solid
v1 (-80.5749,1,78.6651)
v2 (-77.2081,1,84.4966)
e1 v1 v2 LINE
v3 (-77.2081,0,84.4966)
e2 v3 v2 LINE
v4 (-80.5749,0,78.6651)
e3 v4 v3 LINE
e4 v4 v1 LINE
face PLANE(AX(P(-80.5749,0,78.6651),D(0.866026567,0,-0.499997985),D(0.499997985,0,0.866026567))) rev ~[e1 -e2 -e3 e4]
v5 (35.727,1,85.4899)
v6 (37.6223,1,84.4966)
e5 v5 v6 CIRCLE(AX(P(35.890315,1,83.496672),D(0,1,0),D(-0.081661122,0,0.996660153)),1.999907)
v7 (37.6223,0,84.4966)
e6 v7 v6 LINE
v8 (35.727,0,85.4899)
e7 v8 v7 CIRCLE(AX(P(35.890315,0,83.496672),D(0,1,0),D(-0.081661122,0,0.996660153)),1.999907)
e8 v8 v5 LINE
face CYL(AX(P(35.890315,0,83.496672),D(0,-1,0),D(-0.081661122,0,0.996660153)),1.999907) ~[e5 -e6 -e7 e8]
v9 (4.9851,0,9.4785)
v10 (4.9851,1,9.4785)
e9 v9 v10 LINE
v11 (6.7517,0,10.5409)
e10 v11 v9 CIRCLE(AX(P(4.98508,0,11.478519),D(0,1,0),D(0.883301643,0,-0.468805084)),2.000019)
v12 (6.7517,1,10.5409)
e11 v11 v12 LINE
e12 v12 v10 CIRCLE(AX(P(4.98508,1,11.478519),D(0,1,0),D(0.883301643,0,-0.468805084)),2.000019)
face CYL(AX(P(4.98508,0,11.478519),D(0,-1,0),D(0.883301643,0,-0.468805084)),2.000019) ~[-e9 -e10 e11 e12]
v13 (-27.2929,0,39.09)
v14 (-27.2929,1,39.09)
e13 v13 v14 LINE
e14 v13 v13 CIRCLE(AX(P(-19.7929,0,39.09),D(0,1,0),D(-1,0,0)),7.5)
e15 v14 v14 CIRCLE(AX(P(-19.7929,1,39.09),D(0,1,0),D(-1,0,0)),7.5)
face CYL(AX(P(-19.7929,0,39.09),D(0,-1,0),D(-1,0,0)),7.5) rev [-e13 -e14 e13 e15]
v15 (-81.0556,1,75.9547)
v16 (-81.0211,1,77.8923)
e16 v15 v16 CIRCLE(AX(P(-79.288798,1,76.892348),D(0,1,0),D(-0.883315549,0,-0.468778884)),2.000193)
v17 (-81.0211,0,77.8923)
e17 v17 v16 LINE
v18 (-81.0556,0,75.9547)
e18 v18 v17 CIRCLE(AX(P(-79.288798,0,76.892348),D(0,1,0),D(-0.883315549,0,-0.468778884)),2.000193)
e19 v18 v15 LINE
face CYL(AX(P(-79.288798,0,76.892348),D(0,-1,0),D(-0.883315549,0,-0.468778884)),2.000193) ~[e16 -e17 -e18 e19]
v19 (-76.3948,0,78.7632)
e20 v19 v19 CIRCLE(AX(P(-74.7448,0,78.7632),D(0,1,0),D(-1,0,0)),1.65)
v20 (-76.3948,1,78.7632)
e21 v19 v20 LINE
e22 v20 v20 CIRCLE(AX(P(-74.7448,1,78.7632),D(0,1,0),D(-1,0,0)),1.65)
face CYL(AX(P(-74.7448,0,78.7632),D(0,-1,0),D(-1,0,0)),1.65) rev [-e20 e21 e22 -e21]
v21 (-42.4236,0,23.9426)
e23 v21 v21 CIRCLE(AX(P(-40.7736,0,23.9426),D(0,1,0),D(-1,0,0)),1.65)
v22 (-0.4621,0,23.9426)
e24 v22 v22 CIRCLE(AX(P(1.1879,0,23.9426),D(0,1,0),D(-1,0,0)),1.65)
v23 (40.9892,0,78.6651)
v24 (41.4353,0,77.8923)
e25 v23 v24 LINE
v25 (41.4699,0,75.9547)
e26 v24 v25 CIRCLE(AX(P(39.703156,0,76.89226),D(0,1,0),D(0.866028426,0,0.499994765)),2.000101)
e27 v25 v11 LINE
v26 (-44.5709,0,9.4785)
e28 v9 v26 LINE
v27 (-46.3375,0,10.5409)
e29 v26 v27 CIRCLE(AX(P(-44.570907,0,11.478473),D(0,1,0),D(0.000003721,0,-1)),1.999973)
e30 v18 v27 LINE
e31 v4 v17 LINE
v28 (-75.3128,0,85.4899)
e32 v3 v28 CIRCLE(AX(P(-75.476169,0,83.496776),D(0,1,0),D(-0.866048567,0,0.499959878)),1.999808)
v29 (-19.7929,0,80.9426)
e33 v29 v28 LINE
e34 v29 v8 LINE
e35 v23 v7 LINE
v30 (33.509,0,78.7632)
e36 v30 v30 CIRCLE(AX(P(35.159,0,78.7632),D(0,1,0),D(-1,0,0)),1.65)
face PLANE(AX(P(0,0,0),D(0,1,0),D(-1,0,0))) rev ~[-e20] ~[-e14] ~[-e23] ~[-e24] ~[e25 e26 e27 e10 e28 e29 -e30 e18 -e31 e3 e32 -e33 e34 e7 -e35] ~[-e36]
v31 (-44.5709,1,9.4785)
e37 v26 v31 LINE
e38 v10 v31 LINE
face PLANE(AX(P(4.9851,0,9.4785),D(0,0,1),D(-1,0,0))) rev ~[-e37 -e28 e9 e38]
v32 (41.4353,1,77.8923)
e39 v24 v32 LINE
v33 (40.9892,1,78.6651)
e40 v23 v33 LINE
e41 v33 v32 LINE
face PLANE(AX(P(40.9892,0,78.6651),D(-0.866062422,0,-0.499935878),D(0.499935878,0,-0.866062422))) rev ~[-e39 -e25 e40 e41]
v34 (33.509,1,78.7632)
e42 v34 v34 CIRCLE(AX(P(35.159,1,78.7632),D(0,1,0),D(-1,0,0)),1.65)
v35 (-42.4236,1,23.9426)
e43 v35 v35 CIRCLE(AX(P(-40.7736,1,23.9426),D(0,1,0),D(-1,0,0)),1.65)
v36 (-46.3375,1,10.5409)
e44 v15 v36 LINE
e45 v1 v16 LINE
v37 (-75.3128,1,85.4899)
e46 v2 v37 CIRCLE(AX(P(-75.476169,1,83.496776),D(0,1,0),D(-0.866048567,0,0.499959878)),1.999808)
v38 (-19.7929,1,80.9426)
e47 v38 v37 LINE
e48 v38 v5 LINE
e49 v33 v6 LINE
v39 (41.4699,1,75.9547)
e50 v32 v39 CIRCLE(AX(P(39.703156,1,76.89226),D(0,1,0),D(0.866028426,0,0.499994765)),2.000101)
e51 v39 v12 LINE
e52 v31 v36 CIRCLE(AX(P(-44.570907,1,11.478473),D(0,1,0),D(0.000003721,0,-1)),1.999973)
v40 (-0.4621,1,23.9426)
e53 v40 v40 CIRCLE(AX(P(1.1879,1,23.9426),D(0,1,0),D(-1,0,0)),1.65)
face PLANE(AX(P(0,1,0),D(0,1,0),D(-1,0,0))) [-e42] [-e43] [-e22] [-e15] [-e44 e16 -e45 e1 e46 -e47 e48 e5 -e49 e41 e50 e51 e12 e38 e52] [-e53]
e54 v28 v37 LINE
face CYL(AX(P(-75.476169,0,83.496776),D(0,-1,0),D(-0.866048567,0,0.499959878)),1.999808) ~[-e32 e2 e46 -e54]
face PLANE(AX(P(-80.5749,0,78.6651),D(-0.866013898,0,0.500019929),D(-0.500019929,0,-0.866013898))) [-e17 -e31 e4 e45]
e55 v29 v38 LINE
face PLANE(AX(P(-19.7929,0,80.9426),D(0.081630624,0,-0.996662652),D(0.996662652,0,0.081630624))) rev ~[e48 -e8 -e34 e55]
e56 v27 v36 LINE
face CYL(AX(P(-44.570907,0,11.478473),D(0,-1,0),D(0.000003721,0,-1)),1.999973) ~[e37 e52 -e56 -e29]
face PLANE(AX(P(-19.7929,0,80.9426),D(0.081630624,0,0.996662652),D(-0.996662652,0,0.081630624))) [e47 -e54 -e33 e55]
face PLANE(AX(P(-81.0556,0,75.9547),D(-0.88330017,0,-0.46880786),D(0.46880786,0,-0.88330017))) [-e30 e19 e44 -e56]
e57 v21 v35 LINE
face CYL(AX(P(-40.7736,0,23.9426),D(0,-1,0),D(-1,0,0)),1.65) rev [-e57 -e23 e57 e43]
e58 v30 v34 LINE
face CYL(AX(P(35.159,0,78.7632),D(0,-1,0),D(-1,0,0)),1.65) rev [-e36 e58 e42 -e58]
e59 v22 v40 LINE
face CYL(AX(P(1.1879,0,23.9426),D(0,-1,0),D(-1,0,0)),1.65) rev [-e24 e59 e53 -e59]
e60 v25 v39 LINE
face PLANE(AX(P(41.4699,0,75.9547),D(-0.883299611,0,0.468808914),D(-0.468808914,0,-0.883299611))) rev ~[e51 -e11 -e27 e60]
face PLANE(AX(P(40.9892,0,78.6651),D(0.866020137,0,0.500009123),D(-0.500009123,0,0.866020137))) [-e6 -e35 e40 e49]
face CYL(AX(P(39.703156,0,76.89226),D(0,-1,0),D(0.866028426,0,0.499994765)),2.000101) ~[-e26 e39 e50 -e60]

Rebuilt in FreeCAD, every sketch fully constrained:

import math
import FreeCAD as App
import Part
import Sketcher

V = App.Vector

doc = App.newDocument("Part")
body = doc.addObject("PartDesign::Body", "Body")

sketch1 = body.newObject("Sketcher::SketchObject", "Sketch")
sketch1.AttachmentSupport = (doc.getObject("XZ_Plane"), [""])
sketch1.MapMode = "FlatFace"
sketch1.addGeometry(Part.LineSegment(V(-81.0211, 77.8923, 0), V(-80.5749, 78.6651, 0)), False)
sketch1.addGeometry(Part.LineSegment(V(-80.5749, 78.6651, 0), V(-77.2081, 84.4966, 0)), False)
sketch1.addGeometry(Part.ArcOfCircle(Part.Circle(V(-75.476, 83.4966, 0), V(0, 0, 1), 2.000043), math.radians(85.319389), math.radians(150.000705)), False)
sketch1.addGeometry(Part.LineSegment(V(-75.3128, 85.4899, 0), V(-19.7929, 80.9426, 0)), False)
sketch1.addGeometry(Part.LineSegment(V(-19.7929, 80.9426, 0), V(35.727, 85.4899, 0)), False)
sketch1.addGeometry(Part.ArcOfCircle(Part.Circle(V(35.8903, 83.4966, 0), V(0, 0, 1), 1.999978), math.radians(30.000728), math.radians(94.683466)), False)
sketch1.addGeometry(Part.LineSegment(V(37.6223, 84.4966, 0), V(40.9892, 78.6651, 0)), False)
sketch1.addGeometry(Part.LineSegment(V(40.9892, 78.6651, 0), V(41.4353, 77.8923, 0)), False)
sketch1.addGeometry(Part.ArcOfCircle(Part.Circle(V(39.7033, 76.8923, 0), V(0, 0, 1), 1.999956), math.radians(-27.956547), math.radians(30.000728)), False)
sketch1.addGeometry(Part.LineSegment(V(41.4699, 75.9547, 0), V(6.7517, 10.5409, 0)), False)
sketch1.addGeometry(Part.ArcOfCircle(Part.Circle(V(4.9851, 11.4785, 0), V(0, 0, 1), 1.999992), math.radians(-90), math.radians(-27.956547)), False)
sketch1.addGeometry(Part.LineSegment(V(4.9851, 9.4785, 0), V(-44.5709, 9.4785, 0)), False)
sketch1.addGeometry(Part.ArcOfCircle(Part.Circle(V(-44.5709, 11.4785, 0), V(0, 0, 1), 2), math.radians(-152.043453), math.radians(-90)), False)
sketch1.addGeometry(Part.LineSegment(V(-46.3375, 10.5409, 0), V(-81.0556, 75.9547, 0)), False)
sketch1.addGeometry(Part.ArcOfCircle(Part.Circle(V(-79.289, 76.8923, 0), V(0, 0, 1), 1.999992), math.radians(150.000705), math.radians(207.956547)), False)
sketch1.addGeometry(Part.Circle(V(1.1879, 23.9426, 0), V(0, 0, 1), 1.65), False)
sketch1.addGeometry(Part.Circle(V(-40.7736, 23.9426, 0), V(0, 0, 1), 1.65), False)
sketch1.addGeometry(Part.Circle(V(-19.7929, 39.09, 0), V(0, 0, 1), 7.5), False)
sketch1.addGeometry(Part.Circle(V(35.159, 78.7632, 0), V(0, 0, 1), 1.65), False)
sketch1.addGeometry(Part.Circle(V(-74.7448, 78.7632, 0), V(0, 0, 1), 1.65), False)
sketch1.addConstraint(Sketcher.Constraint("Coincident", 0, 2, 1, 1))
sketch1.addConstraint(Sketcher.Constraint("Coincident", 1, 2, 2, 2))
sketch1.addConstraint(Sketcher.Constraint("Coincident", 2, 1, 3, 1))
sketch1.addConstraint(Sketcher.Constraint("Coincident", 3, 2, 4, 1))
sketch1.addConstraint(Sketcher.Constraint("Coincident", 4, 2, 5, 2))
sketch1.addConstraint(Sketcher.Constraint("Coincident", 5, 1, 6, 1))
sketch1.addConstraint(Sketcher.Constraint("Coincident", 6, 2, 7, 1))
sketch1.addConstraint(Sketcher.Constraint("Coincident", 7, 2, 8, 2))
sketch1.addConstraint(Sketcher.Constraint("Coincident", 8, 1, 9, 1))
sketch1.addConstraint(Sketcher.Constraint("Coincident", 9, 2, 10, 2))
sketch1.addConstraint(Sketcher.Constraint("Coincident", 10, 1, 11, 1))
sketch1.addConstraint(Sketcher.Constraint("Coincident", 11, 2, 12, 2))
sketch1.addConstraint(Sketcher.Constraint("Coincident", 12, 1, 13, 1))
sketch1.addConstraint(Sketcher.Constraint("Coincident", 13, 2, 14, 2))
sketch1.addConstraint(Sketcher.Constraint("Coincident", 14, 1, 0, 1))
sketch1.addConstraint(Sketcher.Constraint("Horizontal", 11))
sketch1.addConstraint(Sketcher.Constraint("Diameter", 17, 15.0))
sketch1.addConstraint(Sketcher.Constraint("Radius", 2, 2.0))
sketch1.addConstraint(Sketcher.Constraint("Radius", 5, 2.0))
sketch1.addConstraint(Sketcher.Constraint("Radius", 8, 2.0))
sketch1.addConstraint(Sketcher.Constraint("Radius", 10, 2.0))
sketch1.addConstraint(Sketcher.Constraint("Radius", 12, 2.0))
sketch1.addConstraint(Sketcher.Constraint("Radius", 14, 2.0))
sketch1.addConstraint(Sketcher.Constraint("Diameter", 15, 3.3))
sketch1.addConstraint(Sketcher.Constraint("Diameter", 16, 3.3))
sketch1.addConstraint(Sketcher.Constraint("Diameter", 18, 3.3))
sketch1.addConstraint(Sketcher.Constraint("Diameter", 19, 3.3))
sketch1.addConstraint(Sketcher.Constraint("DistanceY", 2, 3, 1, 2, 1.0))
sketch1.addConstraint(Sketcher.Constraint("DistanceY", 5, 3, 5, 1, 1.0))
sketch1.addConstraint(Sketcher.Constraint("DistanceY", 8, 3, 7, 2, 1.0))
sketch1.addConstraint(Sketcher.Constraint("DistanceY", 14, 3, 14, 1, 1.0))
sketch1.addConstraint(Sketcher.Constraint("DistanceX", 11, 2, 11, 1, 49.556))
sketch1.addConstraint(Sketcher.Constraint("DistanceY", -1, 1, 17, 3, 39.09))
sketch1.addConstraint(Sketcher.Constraint("DistanceY", -1, 1, 2, 1, 85.49))
sketch1.addConstraint(Sketcher.Constraint("DistanceY", -1, 1, 4, 2, 85.49))
sketch1.addConstraint(Sketcher.Constraint("DistanceX", 0, 2, 19, 3, 5.83))
sketch1.addConstraint(Sketcher.Constraint("DistanceX", 2, 1, 3, 2, 55.52))
sketch1.addConstraint(Sketcher.Constraint("DistanceX", 3, 2, 4, 2, 55.52))
sketch1.addConstraint(Sketcher.Constraint("DistanceX", 2, 3, -1, 1, 75.476))
sketch1.addConstraint(Sketcher.Constraint("DistanceX", -1, 1, 10, 3, 4.985))
sketch1.addConstraint(Sketcher.Constraint("DistanceX", 12, 3, -1, 1, 44.571))
sketch1.addConstraint(Sketcher.Constraint("DistanceX", 14, 3, -1, 1, 79.289))
sketch1.addConstraint(Sketcher.Constraint("DistanceX", -1, 1, 15, 3, 1.188))
sketch1.addConstraint(Sketcher.Constraint("DistanceX", 17, 3, -1, 1, 19.793))
sketch1.addConstraint(Sketcher.Constraint("DistanceX", -1, 1, 18, 3, 35.159))
sketch1.addConstraint(Sketcher.Constraint("DistanceX", 0, 2, -1, 1, 80.575))
sketch1.addConstraint(Sketcher.Constraint("DistanceY", -1, 1, 0, 2, 78.665))
sketch1.addConstraint(Sketcher.Constraint("DistanceX", 3, 2, -1, 1, 19.793))
sketch1.addConstraint(Sketcher.Constraint("DistanceY", -1, 1, 6, 2, 78.665))
sketch1.addConstraint(Sketcher.Constraint("DistanceY", -1, 1, 9, 2, 10.541))
sketch1.addConstraint(Sketcher.Constraint("DistanceX", -1, 1, 10, 1, 4.985))
sketch1.addConstraint(Sketcher.Constraint("DistanceY", -1, 1, 12, 1, 10.541))
sketch1.addConstraint(Sketcher.Constraint("DistanceX", 5, 3, 8, 3, 3.813))
sketch1.addConstraint(Sketcher.Constraint("DistanceY", 10, 3, 5, 3, 72.018))
sketch1.addConstraint(Sketcher.Constraint("DistanceY", 10, 3, 2, 3, 72.018))
sketch1.addConstraint(Sketcher.Constraint("DistanceY", 10, 3, 15, 3, 12.464))
sketch1.addConstraint(Sketcher.Constraint("DistanceY", 12, 3, 16, 3, 12.464))
sketch1.addConstraint(Sketcher.Constraint("DistanceY", 8, 3, 18, 3, 1.871))
sketch1.addConstraint(Sketcher.Constraint("DistanceY", 14, 3, 19, 3, 1.871))
sketch1.addConstraint(Sketcher.Constraint("DistanceY", 0, 2, 19, 3, 0.098))
sketch1.addConstraint(Sketcher.Constraint("DistanceY", 3, 2, 2, 3, 2.554))
sketch1.addConstraint(Sketcher.Constraint("DistanceX", 8, 3, 6, 2, 1.286))
sketch1.addConstraint(Sketcher.Constraint("DistanceY", 6, 2, 18, 3, 0.098))
sketch1.addConstraint(Sketcher.Constraint("DistanceY", 8, 1, 5, 1, 8.542))
sketch1.addConstraint(Sketcher.Constraint("DistanceX", 12, 1, 16, 3, 5.564))
sketch1.addConstraint(Sketcher.Constraint("DistanceY", 13, 2, 1, 2, 8.542))
pad1 = body.newObject("PartDesign::Pad", "Pad")
pad1.Profile = sketch1
pad1.Length = 1
pad1.Reversed = True

doc.recompute()
